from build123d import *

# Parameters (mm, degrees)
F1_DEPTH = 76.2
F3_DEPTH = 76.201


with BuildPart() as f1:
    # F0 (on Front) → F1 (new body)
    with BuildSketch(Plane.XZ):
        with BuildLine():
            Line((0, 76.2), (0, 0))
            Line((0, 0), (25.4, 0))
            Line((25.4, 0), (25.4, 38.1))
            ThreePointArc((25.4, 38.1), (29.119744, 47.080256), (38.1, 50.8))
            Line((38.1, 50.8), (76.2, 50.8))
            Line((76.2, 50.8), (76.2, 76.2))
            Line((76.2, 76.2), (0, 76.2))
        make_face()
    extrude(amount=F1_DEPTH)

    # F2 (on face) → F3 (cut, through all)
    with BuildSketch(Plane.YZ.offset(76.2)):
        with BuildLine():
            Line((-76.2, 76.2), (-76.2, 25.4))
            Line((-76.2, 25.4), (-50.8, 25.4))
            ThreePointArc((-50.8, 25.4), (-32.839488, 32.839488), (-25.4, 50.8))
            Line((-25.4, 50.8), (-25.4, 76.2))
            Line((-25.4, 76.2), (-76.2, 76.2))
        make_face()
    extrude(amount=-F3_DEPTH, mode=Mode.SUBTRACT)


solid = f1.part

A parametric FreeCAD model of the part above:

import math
import FreeCAD as App
import Part
import Sketcher
from FreeCAD import Vector
Q = App.Units.Quantity

doc = App.newDocument("Part")
params = doc.addObject("Spreadsheet::Sheet", "Params")
for row, (alias, value) in enumerate([
    ("sketch1_radius", "0.5 in"),
    ("sketch1_width", "1 in"),
    ("sketch1_width2", "3 in"),
    ("pad1_length", "3 in"),
    ("sketch2_radius", "1 in"),
    ("sketch2_width", "1 in"),
], start=1):
    params.set(f"A{row}", alias)
    params.set(f"B{row}", "=" + value)
    params.setAlias(f"B{row}", alias)

body = doc.addObject("PartDesign::Body", "Body")

# Sketch on XZ plane
sketch1 = body.newObject("Sketcher::SketchObject", "Sketch")
sketch1.AttachmentSupport = (doc.getObject("XZ_Plane"), [""])
sketch1.MapMode = "FlatFace"
sketch1.addGeometry(Part.LineSegment(Vector(0, 76, 0), Vector(0, 0, 0)), False)
sketch1.addGeometry(Part.LineSegment(Vector(0, 0, 0), Vector(25, 0, 0)), False)
sketch1.addGeometry(Part.LineSegment(Vector(25, 0, 0), Vector(25, 38, 0)), False)
sketch1.addGeometry(Part.ArcOfCircle(Part.Circle(Vector(38, 38, 0), Vector(0, 0, 1), 13), math.radians(90), math.radians(180)), False)
sketch1.addGeometry(Part.LineSegment(Vector(38, 51, 0), Vector(76, 51, 0)), False)
sketch1.addGeometry(Part.LineSegment(Vector(76, 51, 0), Vector(76, 76, 0)), False)
sketch1.addGeometry(Part.LineSegment(Vector(76, 76, 0), Vector(0, 76, 0)), False)
sketch1.addConstraint(Sketcher.Constraint("Coincident", 0, 2, 1, 1))
sketch1.addConstraint(Sketcher.Constraint("Coincident", 1, 2, 2, 1))
sketch1.addConstraint(Sketcher.Constraint("Tangent", 2, 2, 3, 2))
sketch1.addConstraint(Sketcher.Constraint("Tangent", 3, 1, 4, 1))
sketch1.addConstraint(Sketcher.Constraint("Coincident", 4, 2, 5, 1))
sketch1.addConstraint(Sketcher.Constraint("Coincident", 5, 2, 6, 1))
sketch1.addConstraint(Sketcher.Constraint("Coincident", 6, 2, 0, 1))
sketch1.addConstraint(Sketcher.Constraint("Vertical", 0))
sketch1.addConstraint(Sketcher.Constraint("Horizontal", 1))
sketch1.addConstraint(Sketcher.Constraint("Vertical", 2))
sketch1.addConstraint(Sketcher.Constraint("Horizontal", 4))
sketch1.addConstraint(Sketcher.Constraint("Vertical", 5))
sketch1.addConstraint(Sketcher.Constraint("Horizontal", 6))
sketch1.addConstraint(Sketcher.Constraint("Coincident", 0, 2, -1, 1))
sketch1.addConstraint(Sketcher.Constraint("Equal", 6, 0))
sketch1.addConstraint(Sketcher.Constraint("Equal", 4, 2))
sketch1.addConstraint(Sketcher.Constraint("Radius", 3, Q("0.5 in")))
sketch1.addConstraint(Sketcher.Constraint("DistanceX", 1, 1, 1, 2, Q("1 in")))
sketch1.addConstraint(Sketcher.Constraint("DistanceX", 6, 2, 6, 1, Q("3 in")))
sketch1.setExpression("Constraints[16]", "Params.sketch1_radius")
sketch1.setExpression("Constraints[17]", "Params.sketch1_width")
sketch1.setExpression("Constraints[18]", "Params.sketch1_width2")
pad1 = body.newObject("PartDesign::Pad", "Pad")
pad1.Profile = sketch1
pad1.setExpression("Length", "Params.pad1_length")

# Sketch on YZ plane
sketch2 = body.newObject("Sketcher::SketchObject", "Sketch001")
sketch2.AttachmentSupport = (doc.getObject("YZ_Plane"), [""])
sketch2.MapMode = "FlatFace"
sketch2.AttachmentOffset = App.Placement(Vector(0, 0, 3 * 25.4), App.Rotation())
sketch2.addGeometry(Part.LineSegment(Vector(-76, 76, 0), Vector(-76, 25, 0)), False)
sketch2.addGeometry(Part.LineSegment(Vector(-76, 25, 0), Vector(-51, 25, 0)), False)
sketch2.addGeometry(Part.ArcOfCircle(Part.Circle(Vector(-51, 51, 0), Vector(0, 0, 1), 25), math.radians(-90), math.radians(0)), False)
sketch2.addGeometry(Part.LineSegment(Vector(-25, 51, 0), Vector(-25, 76, 0)), False)
sketch2.addGeometry(Part.LineSegment(Vector(-25, 76, 0), Vector(-76, 76, 0)), False)
sketch2.addConstraint(Sketcher.Constraint("Coincident", 0, 2, 1, 1))
sketch2.addConstraint(Sketcher.Constraint("Tangent", 1, 2, 2, 1))
sketch2.addConstraint(Sketcher.Constraint("Tangent", 2, 2, 3, 1))
sketch2.addConstraint(Sketcher.Constraint("Coincident", 3, 2, 4, 1))
sketch2.addConstraint(Sketcher.Constraint("Coincident", 4, 2, 0, 1))
sketch2.addConstraint(Sketcher.Constraint("Vertical", 0))
sketch2.addConstraint(Sketcher.Constraint("Horizontal", 1))
sketch2.addConstraint(Sketcher.Constraint("Vertical", 3))
sketch2.addConstraint(Sketcher.Constraint("Horizontal", 4))
sketch2.addConstraint(Sketcher.Constraint("Equal", 4, 0))
sketch2.addConstraint(Sketcher.Constraint("Radius", 2, Q("1 in")))
sketch2.addConstraint(Sketcher.Constraint("DistanceX", 1, 1, 1, 2, Q("1 in")))
sketch2.addConstraint(Sketcher.Constraint("DistanceX", 2, 3, -1, 1, Q("2 in")))
sketch2.addConstraint(Sketcher.Constraint("DistanceY", -1, 1, 2, 3, Q("2 in")))
sketch2.setExpression("Constraints[10]", "Params.sketch2_radius")
sketch2.setExpression("Constraints[11]", "Params.sketch2_width")
pocket1 = body.newObject("PartDesign::Pocket", "Pocket")
pocket1.Profile = sketch2
pocket1.Type = "ThroughAll"

doc.recompute()
